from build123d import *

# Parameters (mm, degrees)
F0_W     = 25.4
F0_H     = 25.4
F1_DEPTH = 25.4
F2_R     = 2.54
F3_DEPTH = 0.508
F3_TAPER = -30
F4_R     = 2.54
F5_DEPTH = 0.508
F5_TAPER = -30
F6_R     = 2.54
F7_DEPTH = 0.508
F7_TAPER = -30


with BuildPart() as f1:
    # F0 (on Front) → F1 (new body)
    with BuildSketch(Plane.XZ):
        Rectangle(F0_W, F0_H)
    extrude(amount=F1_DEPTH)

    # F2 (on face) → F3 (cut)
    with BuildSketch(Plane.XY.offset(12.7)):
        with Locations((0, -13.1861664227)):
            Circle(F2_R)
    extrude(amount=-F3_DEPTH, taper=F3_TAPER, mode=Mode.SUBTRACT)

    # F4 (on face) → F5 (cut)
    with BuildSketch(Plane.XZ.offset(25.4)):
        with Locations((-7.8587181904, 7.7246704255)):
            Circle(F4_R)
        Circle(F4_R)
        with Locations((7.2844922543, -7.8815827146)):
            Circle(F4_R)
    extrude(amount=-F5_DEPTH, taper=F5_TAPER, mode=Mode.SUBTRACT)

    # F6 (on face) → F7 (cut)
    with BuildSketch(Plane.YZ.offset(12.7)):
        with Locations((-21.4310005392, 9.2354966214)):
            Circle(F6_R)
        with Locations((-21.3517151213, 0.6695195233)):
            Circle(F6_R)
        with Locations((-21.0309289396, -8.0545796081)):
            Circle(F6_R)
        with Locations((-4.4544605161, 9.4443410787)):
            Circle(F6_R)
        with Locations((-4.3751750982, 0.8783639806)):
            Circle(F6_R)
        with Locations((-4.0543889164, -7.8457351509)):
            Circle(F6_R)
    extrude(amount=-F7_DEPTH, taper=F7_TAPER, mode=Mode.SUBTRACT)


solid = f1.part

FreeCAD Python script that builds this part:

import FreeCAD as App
import Part
import Sketcher
Q = App.Units.Quantity

doc = App.newDocument("Part")
body = doc.addObject("PartDesign::Body", "Body")

# Sketch on XZ plane
sketch1 = doc.addObject("Sketcher::SketchObject", "Sketch")
body.addObject(sketch1)
sketch1.AttachmentSupport = (doc.XZ_Plane, [""])
sketch1.MapMode = "FlatFace"
sketch1.addGeometry(Part.LineSegment(App.Vector(-13, 13, 0), App.Vector(-13, -13, 0)), False)
sketch1.addGeometry(Part.LineSegment(App.Vector(-13, -13, 0), App.Vector(13, -13, 0)), False)
sketch1.addGeometry(Part.LineSegment(App.Vector(13, -13, 0), App.Vector(13, 13, 0)), False)
sketch1.addGeometry(Part.LineSegment(App.Vector(13, 13, 0), App.Vector(-13, 13, 0)), False)
sketch1.addConstraint(Sketcher.Constraint("Coincident", 0, 2, 1, 1))
sketch1.addConstraint(Sketcher.Constraint("Coincident", 1, 2, 2, 1))
sketch1.addConstraint(Sketcher.Constraint("Coincident", 2, 2, 3, 1))
sketch1.addConstraint(Sketcher.Constraint("Coincident", 3, 2, 0, 1))
sketch1.addConstraint(Sketcher.Constraint("Vertical", 0))
sketch1.addConstraint(Sketcher.Constraint("Horizontal", 1))
sketch1.addConstraint(Sketcher.Constraint("Vertical", 2))
sketch1.addConstraint(Sketcher.Constraint("Horizontal", 3))
sketch1.addConstraint(Sketcher.Constraint("Symmetric", 0, 2, 2, 2, -1, 1))
sketch1.addConstraint(Sketcher.Constraint("Equal", 3, 0))
sketch1.addConstraint(Sketcher.Constraint("DistanceX", 1, 1, 1, 2, Q("1 in")))
pad1 = doc.addObject("PartDesign::Pad", "Pad")
body.addObject(pad1)
pad1.Profile = sketch1
pad1.Length = Q("1 in")

# Sketch on XY plane
sketch2 = doc.addObject("Sketcher::SketchObject", "Sketch001")
body.addObject(sketch2)
sketch2.AttachmentSupport = (doc.XY_Plane, [""])
sketch2.MapMode = "FlatFace"
sketch2.AttachmentOffset = App.Placement(App.Vector(0, 0, 0.5 * 25.4), App.Rotation())
sketch2.addGeometry(Part.Circle(App.Vector(0, -13.2, 0), App.Vector(0, 0, 1), 2.5), False)
sketch2.addConstraint(Sketcher.Constraint("PointOnObject", 0, 3, -2))
sketch2.addConstraint(Sketcher.Constraint("Diameter", 0, Q("0.2 in")))
sketch2.addConstraint(Sketcher.Constraint("DistanceY", 0, 3, -1, 1, Q("13.186166 mm")))
pocket1 = doc.addObject("PartDesign::Pocket", "Pocket")
body.addObject(pocket1)
pocket1.Profile = sketch2
pocket1.Length = Q("0.02 in")
pocket1.TaperAngle = 30

# Sketch on XZ plane
sketch3 = doc.addObject("Sketcher::SketchObject", "Sketch002")
body.addObject(sketch3)
sketch3.AttachmentSupport = (doc.XZ_Plane, [""])
sketch3.MapMode = "FlatFace"
sketch3.AttachmentOffset = App.Placement(App.Vector(0, 0, 1 * 25.4), App.Rotation())
sketch3.addGeometry(Part.Circle(App.Vector(-7.9, 7.7, 0), App.Vector(0, 0, 1), 2.5), False)
sketch3.addGeometry(Part.Circle(App.Vector(0, 0, 0), App.Vector(0, 0, 1), 2.5), False)
sketch3.addGeometry(Part.Circle(App.Vector(7.3, -7.9, 0), App.Vector(0, 0, 1), 2.5), False)
sketch3.addConstraint(Sketcher.Constraint("Coincident", 1, 3, -1, 1))
sketch3.addConstraint(Sketcher.Constraint("Equal", 0, 1))
sketch3.addConstraint(Sketcher.Constraint("Equal", 1, 2))
sketch3.addConstraint(Sketcher.Constraint("Diameter", 0, Q("0.2 in")))
sketch3.addConstraint(Sketcher.Constraint("DistanceX", 0, 3, -1, 1, Q("7.858718 mm")))
sketch3.addConstraint(Sketcher.Constraint("DistanceY", -1, 1, 0, 3, Q("7.72467 mm")))
sketch3.addConstraint(Sketcher.Constraint("DistanceX", 0, 3, 2, 3, Q("15.14321 mm")))
sketch3.addConstraint(Sketcher.Constraint("DistanceY", 2, 3, -1, 1, Q("7.881583 mm")))
pocket2 = doc.addObject("PartDesign::Pocket", "Pocket001")
body.addObject(pocket2)
pocket2.Profile = sketch3
pocket2.Length = Q("0.02 in")
pocket2.TaperAngle = 30

# Sketch on YZ plane
sketch4 = doc.addObject("Sketcher::SketchObject", "Sketch003")
body.addObject(sketch4)
sketch4.AttachmentSupport = (doc.YZ_Plane, [""])
sketch4.MapMode = "FlatFace"
sketch4.AttachmentOffset = App.Placement(App.Vector(0, 0, 0.5 * 25.4), App.Rotation())
sketch4.addGeometry(Part.Circle(App.Vector(-21.4, 9.2, 0), App.Vector(0, 0, 1), 2.5), False)
sketch4.addGeometry(Part.Circle(App.Vector(-21.4, 0.7, 0), App.Vector(0, 0, 1), 2.5), False)
sketch4.addGeometry(Part.Circle(App.Vector(-21, -8.1, 0), App.Vector(0, 0, 1), 2.5), False)
sketch4.addGeometry(Part.Circle(App.Vector(-4.5, 9.4, 0), App.Vector(0, 0, 1), 2.5), False)
sketch4.addGeometry(Part.Circle(App.Vector(-4.4, 0.9, 0), App.Vector(0, 0, 1), 2.5), False)
sketch4.addGeometry(Part.Circle(App.Vector(-4.1, -7.8, 0), App.Vector(0, 0, 1), 2.5), False)
sketch4.addConstraint(Sketcher.Constraint("Equal", 0, 1))
sketch4.addConstraint(Sketcher.Constraint("Equal", 1, 2))
sketch4.addConstraint(Sketcher.Constraint("Equal", 2, 3))
sketch4.addConstraint(Sketcher.Constraint("Equal", 3, 4))
sketch4.addConstraint(Sketcher.Constraint("Equal", 4, 5))
sketch4.addConstraint(Sketcher.Constraint("Diameter", 0, Q("0.2 in")))
sketch4.addConstraint(Sketcher.Constraint("DistanceX", 0, 3, -1, 1, Q("21.431001 mm")))
sketch4.addConstraint(Sketcher.Constraint("DistanceY", 2, 3, 1, 3, Q("8.724099 mm")))
sketch4.addConstraint(Sketcher.Constraint("DistanceY", 5, 3, 4, 3, Q("8.724099 mm")))
sketch4.addConstraint(Sketcher.Constraint("DistanceY", -1, 1, 1, 3, Q("0.66952 mm")))
sketch4.addConstraint(Sketcher.Constraint("DistanceX", 2, 3, -1, 1, Q("21.030929 mm")))
sketch4.addConstraint(Sketcher.Constraint("DistanceX", 3, 3, -1, 1, Q("4.454461 mm")))
sketch4.addConstraint(Sketcher.Constraint("DistanceY", -1, 1, 3, 3, Q("9.444341 mm")))
sketch4.addConstraint(Sketcher.Constraint("DistanceX", 5, 3, -1, 1, Q("4.054389 mm")))
sketch4.addConstraint(Sketcher.Constraint("DistanceX", 1, 3, 4, 3, Q("16.97654 mm")))
sketch4.addConstraint(Sketcher.Constraint("DistanceY", 5, 3, 0, 3, Q("17.081232 mm")))
sketch4.addConstraint(Sketcher.Constraint("DistanceY", -1, 1, 0, 3, Q("9.235497 mm")))
sketch4.addConstraint(Sketcher.Constraint("DistanceX", 1, 3, -1, 1, Q("21.351715 mm")))
pocket3 = doc.addObject("PartDesign::Pocket", "Pocket002")
body.addObject(pocket3)
pocket3.Profile = sketch4
pocket3.Length = Q("0.02 in")
pocket3.TaperAngle = 30

doc.recompute()
